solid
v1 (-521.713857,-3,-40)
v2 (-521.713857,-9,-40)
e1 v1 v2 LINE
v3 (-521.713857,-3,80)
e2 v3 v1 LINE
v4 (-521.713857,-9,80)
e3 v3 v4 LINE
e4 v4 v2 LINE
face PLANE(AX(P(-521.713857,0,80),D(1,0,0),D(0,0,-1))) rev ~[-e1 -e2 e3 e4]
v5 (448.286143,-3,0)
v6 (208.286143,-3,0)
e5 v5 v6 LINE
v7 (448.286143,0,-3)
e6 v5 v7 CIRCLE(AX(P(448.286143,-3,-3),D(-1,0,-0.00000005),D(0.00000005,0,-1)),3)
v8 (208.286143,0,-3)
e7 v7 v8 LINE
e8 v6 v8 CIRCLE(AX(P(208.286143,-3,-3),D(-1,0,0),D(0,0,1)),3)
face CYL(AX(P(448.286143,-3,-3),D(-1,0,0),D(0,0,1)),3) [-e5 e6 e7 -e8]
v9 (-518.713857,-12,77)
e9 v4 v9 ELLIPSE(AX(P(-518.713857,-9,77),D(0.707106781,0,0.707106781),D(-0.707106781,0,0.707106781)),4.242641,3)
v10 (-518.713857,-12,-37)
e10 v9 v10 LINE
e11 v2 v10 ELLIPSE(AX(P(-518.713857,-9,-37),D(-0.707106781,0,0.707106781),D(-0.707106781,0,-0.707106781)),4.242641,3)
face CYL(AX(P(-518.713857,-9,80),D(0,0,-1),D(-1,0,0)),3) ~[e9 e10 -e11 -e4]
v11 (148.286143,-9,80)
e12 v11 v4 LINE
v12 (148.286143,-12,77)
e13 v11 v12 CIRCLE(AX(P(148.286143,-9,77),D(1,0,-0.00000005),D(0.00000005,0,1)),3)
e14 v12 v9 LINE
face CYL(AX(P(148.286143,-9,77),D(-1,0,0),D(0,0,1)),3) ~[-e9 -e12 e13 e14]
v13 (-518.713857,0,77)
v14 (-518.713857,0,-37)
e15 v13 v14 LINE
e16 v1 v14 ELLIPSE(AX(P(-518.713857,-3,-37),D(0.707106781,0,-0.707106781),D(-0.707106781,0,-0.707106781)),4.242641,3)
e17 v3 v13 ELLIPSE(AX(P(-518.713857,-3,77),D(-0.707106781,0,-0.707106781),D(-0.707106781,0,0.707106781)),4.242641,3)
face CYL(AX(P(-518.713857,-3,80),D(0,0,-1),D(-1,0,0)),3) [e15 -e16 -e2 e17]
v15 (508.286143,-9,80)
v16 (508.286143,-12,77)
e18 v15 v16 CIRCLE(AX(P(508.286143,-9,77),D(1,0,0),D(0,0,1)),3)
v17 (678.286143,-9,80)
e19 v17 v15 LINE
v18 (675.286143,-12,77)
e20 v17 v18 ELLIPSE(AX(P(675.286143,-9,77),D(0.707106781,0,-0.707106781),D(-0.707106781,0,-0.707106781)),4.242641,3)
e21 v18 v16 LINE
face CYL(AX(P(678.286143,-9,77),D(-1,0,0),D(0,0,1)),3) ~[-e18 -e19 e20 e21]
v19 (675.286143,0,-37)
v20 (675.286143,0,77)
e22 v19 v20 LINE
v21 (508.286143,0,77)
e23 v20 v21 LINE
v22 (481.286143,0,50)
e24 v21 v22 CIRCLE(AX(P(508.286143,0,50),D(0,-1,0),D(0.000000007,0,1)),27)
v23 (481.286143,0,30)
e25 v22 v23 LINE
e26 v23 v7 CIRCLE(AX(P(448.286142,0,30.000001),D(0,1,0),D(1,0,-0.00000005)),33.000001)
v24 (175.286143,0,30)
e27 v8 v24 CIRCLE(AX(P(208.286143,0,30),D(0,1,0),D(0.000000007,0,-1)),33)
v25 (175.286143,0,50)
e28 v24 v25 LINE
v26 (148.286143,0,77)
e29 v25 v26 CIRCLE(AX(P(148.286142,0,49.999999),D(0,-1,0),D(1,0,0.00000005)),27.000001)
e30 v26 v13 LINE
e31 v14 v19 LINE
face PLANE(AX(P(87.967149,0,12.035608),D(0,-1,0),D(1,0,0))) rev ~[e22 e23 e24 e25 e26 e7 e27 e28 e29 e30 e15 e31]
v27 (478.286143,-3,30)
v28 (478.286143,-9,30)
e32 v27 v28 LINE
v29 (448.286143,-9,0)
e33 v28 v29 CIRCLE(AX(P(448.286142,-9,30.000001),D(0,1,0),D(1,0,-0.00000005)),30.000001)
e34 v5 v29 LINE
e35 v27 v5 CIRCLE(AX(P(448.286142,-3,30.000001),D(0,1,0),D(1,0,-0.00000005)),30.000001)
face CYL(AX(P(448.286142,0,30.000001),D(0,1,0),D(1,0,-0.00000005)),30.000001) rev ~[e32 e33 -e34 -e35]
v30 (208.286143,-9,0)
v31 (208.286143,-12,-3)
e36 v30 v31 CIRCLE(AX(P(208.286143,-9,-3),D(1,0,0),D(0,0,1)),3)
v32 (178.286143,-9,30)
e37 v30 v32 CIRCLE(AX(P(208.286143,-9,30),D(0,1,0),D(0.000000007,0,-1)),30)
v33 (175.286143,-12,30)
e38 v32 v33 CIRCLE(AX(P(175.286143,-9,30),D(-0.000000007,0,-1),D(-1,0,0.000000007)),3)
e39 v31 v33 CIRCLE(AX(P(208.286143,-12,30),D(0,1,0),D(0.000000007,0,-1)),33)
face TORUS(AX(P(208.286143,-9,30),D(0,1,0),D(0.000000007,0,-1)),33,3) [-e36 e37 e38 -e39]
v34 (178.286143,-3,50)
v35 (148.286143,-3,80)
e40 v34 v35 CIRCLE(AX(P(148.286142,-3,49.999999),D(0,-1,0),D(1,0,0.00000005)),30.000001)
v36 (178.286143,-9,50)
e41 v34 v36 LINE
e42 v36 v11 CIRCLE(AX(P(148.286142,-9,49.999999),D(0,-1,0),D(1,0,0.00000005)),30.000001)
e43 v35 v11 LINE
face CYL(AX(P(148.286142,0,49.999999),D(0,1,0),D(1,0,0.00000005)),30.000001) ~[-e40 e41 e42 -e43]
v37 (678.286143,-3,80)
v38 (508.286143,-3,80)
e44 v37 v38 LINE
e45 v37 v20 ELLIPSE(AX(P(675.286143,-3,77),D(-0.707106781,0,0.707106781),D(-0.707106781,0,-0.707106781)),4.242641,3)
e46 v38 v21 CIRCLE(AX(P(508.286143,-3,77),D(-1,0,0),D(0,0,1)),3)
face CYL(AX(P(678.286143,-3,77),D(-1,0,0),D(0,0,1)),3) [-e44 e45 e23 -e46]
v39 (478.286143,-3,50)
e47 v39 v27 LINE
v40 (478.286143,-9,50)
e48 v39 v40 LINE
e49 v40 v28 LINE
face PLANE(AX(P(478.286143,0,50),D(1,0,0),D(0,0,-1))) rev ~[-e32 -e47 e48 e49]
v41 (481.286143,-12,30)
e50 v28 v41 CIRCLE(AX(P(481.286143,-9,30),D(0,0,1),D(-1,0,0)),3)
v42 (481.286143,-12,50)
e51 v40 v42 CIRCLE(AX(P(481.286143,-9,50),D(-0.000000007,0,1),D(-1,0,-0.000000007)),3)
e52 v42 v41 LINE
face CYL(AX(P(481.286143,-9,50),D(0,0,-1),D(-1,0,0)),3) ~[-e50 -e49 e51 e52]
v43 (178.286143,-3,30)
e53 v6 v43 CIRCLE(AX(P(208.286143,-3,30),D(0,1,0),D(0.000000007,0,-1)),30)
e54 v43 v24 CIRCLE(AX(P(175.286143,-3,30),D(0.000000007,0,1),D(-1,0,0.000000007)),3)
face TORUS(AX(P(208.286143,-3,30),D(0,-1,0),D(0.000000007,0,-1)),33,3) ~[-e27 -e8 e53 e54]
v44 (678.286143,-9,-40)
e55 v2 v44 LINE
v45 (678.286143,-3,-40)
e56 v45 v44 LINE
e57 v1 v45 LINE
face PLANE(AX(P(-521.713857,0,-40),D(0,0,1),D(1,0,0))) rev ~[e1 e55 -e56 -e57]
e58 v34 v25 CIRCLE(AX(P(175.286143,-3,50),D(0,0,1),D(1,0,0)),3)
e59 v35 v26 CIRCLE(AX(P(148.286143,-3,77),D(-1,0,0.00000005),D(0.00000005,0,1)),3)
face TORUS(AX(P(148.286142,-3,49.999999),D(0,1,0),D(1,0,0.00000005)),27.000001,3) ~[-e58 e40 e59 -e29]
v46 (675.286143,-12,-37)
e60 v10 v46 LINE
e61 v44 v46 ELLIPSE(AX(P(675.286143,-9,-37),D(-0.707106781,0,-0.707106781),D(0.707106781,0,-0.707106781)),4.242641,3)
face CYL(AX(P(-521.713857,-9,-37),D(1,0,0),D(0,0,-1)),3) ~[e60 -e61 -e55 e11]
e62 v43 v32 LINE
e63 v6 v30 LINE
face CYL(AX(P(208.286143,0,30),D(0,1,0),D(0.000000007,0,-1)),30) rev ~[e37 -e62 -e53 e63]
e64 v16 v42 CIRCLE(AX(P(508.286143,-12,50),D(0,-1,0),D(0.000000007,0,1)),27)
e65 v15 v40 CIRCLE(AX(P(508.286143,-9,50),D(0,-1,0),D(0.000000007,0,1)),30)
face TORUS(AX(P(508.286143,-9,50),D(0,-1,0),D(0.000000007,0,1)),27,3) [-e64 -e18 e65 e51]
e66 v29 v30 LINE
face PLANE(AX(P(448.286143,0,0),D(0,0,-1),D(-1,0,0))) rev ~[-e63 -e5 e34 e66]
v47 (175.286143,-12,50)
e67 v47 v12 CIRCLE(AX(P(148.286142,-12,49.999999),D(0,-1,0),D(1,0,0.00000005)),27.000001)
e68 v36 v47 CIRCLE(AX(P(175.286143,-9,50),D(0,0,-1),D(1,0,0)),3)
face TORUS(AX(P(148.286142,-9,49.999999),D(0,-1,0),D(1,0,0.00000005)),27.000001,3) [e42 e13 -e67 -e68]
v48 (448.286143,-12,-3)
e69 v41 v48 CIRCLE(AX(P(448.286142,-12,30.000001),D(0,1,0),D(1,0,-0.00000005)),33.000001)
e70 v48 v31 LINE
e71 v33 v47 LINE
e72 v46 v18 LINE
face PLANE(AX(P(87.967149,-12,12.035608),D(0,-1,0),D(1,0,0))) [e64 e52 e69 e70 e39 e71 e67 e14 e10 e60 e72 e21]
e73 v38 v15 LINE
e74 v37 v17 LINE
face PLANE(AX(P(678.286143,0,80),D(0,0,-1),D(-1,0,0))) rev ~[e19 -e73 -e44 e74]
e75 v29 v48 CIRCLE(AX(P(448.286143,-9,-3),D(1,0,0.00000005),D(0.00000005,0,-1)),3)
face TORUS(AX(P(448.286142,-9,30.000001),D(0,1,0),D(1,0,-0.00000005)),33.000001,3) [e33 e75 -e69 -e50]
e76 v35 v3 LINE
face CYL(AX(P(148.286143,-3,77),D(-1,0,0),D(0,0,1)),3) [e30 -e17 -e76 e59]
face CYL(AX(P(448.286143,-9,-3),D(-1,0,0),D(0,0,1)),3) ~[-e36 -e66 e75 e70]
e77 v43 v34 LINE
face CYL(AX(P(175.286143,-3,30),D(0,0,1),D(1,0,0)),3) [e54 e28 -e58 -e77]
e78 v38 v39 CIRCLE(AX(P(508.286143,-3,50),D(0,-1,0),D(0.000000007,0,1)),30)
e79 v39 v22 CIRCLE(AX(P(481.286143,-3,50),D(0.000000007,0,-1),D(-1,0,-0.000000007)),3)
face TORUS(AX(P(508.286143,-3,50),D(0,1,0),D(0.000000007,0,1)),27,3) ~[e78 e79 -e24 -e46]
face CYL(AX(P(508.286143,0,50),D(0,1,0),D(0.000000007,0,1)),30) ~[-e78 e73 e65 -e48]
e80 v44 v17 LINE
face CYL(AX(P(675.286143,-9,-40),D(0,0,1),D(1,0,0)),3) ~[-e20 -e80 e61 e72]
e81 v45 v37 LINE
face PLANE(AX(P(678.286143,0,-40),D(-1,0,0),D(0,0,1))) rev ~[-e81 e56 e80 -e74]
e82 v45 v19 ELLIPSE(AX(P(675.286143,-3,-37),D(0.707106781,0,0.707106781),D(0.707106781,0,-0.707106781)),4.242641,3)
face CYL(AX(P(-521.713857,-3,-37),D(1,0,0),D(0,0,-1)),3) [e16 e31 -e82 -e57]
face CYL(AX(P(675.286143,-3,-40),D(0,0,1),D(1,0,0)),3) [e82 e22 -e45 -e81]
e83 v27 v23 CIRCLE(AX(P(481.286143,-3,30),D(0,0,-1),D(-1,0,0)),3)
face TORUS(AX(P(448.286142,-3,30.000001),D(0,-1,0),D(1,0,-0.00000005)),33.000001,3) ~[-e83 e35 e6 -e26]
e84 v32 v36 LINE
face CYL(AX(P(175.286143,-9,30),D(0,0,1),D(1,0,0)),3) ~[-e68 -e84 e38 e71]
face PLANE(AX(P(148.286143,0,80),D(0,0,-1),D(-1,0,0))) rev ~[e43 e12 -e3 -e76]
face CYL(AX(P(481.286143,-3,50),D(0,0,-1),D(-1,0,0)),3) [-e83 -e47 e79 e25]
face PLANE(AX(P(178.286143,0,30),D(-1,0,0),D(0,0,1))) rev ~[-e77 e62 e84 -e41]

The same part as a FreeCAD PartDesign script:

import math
import FreeCAD as App
import Part
import Sketcher
Q = App.Units.Quantity


def edges_at(feature, points):
    """Names of the edges that pass closest to the given points."""
    edges = feature.Shape.Edges
    near = lambda p: min(range(len(edges)), key=lambda i: edges[i].distToShape(Part.Vertex(*p))[0])
    return sorted({f"Edge{near(p) + 1}" for p in points})

doc = App.newDocument("Part")
body = doc.addObject("PartDesign::Body", "Body")

sketch1 = body.newObject("Sketcher::SketchObject", "Sketch")
sketch1.AttachmentSupport = (doc.getObject("XZ_Plane"), [""])
sketch1.MapMode = "FlatFace"
sketch1.addGeometry([
    Part.LineSegment(App.Vector(148, 80, 0), App.Vector(-522, 80, 0)),
    Part.LineSegment(App.Vector(-522, 80, 0), App.Vector(-522, -40, 0)),
    Part.LineSegment(App.Vector(-522, -40, 0), App.Vector(678, -40, 0)),
    Part.LineSegment(App.Vector(678, -40, 0), App.Vector(678, 80, 0)),
    Part.LineSegment(App.Vector(678, 80, 0), App.Vector(508, 80, 0)),
    Part.ArcOfCircle(Part.Circle(App.Vector(508, 50, 0), App.Vector(0, 0, 1), 30), math.radians(90), math.radians(180)),
    Part.LineSegment(App.Vector(478, 50, 0), App.Vector(478, 30, 0)),
    Part.ArcOfCircle(Part.Circle(App.Vector(448, 30, 0), App.Vector(0, 0, 1), 30), math.radians(-90), math.radians(0)),
    Part.LineSegment(App.Vector(448, 0, 0), App.Vector(208, 0, 0)),
    Part.ArcOfCircle(Part.Circle(App.Vector(208, 30, 0), App.Vector(0, 0, 1), 30), math.radians(180), math.radians(270)),
    Part.LineSegment(App.Vector(178, 30, 0), App.Vector(178, 50, 0)),
    Part.ArcOfCircle(Part.Circle(App.Vector(148, 50, 0), App.Vector(0, 0, 1), 30), math.radians(0), math.radians(90)),
], False)
sketch1.addConstraint([
    Sketcher.Constraint("Coincident", 0, 2, 1, 1),
    Sketcher.Constraint("Coincident", 1, 2, 2, 1),
    Sketcher.Constraint("Coincident", 2, 2, 3, 1),
    Sketcher.Constraint("Coincident", 3, 2, 4, 1),
    Sketcher.Constraint("Tangent", 4, 2, 5, 1),
    Sketcher.Constraint("Tangent", 5, 2, 6, 1),
    Sketcher.Constraint("Tangent", 6, 2, 7, 2),
    Sketcher.Constraint("Tangent", 7, 1, 8, 1),
    Sketcher.Constraint("Tangent", 8, 2, 9, 2),
    Sketcher.Constraint("Tangent", 9, 1, 10, 1),
    Sketcher.Constraint("Tangent", 10, 2, 11, 1),
    Sketcher.Constraint("Tangent", 11, 2, 0, 1),
    Sketcher.Constraint("Horizontal", 0),
    Sketcher.Constraint("Vertical", 1),
    Sketcher.Constraint("Horizontal", 2),
    Sketcher.Constraint("Vertical", 3),
    Sketcher.Constraint("Horizontal", 4),
    Sketcher.Constraint("Vertical", 6),
    Sketcher.Constraint("Horizontal", 8),
    Sketcher.Constraint("Vertical", 10),
    Sketcher.Constraint("Equal", 5, 7),
    Sketcher.Constraint("Equal", 7, 9),
    Sketcher.Constraint("Equal", 9, 11),
    Sketcher.Constraint("PointOnObject", 7, 1, -1),
    Sketcher.Constraint("Horizontal", 5, 3, 11, 3),
    Sketcher.Constraint("Radius", 5, Q("30 mm")),
    Sketcher.Constraint("DistanceX", 0, 2, 0, 1, Q("670 mm")),
    Sketcher.Constraint("DistanceX", 2, 1, 2, 2, Q("1200 mm")),
    Sketcher.Constraint("DistanceX", 4, 2, 4, 1, Q("170 mm")),
    Sketcher.Constraint("DistanceY", 1, 2, 1, 1, Q("120 mm")),
    Sketcher.Constraint("DistanceY", 6, 2, 6, 1, Q("20 mm")),
    Sketcher.Constraint("DistanceX", -1, 1, 7, 3, Q("448.286142 mm")),
])
pad1 = body.newObject("PartDesign::Pad", "Pad")
pad1.Profile = sketch1
pad1.Length = 12
doc.recompute()

fillet = body.newObject("PartDesign::Fillet", "Fillet")
fillet.Base = (pad1, edges_at(pad1, [
    (-186.714, 0, 80),
    (-521.714, 0, 20),
    (78.286, 0, -40),
    (678.286, 0, 20),
    (593.286, 0, 80),
    (487.073, 0, 71.213),
    (478.286, 0, 40),
    (469.499, 0, 8.787),
    (328.286, 0, 0),
    (187.073, 0, 8.787),
    (178.286, 0, 40),
    (169.499, 0, 71.213),
    (-186.714, -12, 80),
    (-521.714, -12, 20),
    (78.286, -12, -40),
    (678.286, -12, 20),
    (593.286, -12, 80),
    (487.073, -12, 71.213),
    (478.286, -12, 40),
    (469.499, -12, 8.787),
    (328.286, -12, 0),
    (187.073, -12, 8.787),
    (178.286, -12, 40),
    (169.499, -12, 71.213),
]))
fillet.Radius = 3

doc.recompute()
